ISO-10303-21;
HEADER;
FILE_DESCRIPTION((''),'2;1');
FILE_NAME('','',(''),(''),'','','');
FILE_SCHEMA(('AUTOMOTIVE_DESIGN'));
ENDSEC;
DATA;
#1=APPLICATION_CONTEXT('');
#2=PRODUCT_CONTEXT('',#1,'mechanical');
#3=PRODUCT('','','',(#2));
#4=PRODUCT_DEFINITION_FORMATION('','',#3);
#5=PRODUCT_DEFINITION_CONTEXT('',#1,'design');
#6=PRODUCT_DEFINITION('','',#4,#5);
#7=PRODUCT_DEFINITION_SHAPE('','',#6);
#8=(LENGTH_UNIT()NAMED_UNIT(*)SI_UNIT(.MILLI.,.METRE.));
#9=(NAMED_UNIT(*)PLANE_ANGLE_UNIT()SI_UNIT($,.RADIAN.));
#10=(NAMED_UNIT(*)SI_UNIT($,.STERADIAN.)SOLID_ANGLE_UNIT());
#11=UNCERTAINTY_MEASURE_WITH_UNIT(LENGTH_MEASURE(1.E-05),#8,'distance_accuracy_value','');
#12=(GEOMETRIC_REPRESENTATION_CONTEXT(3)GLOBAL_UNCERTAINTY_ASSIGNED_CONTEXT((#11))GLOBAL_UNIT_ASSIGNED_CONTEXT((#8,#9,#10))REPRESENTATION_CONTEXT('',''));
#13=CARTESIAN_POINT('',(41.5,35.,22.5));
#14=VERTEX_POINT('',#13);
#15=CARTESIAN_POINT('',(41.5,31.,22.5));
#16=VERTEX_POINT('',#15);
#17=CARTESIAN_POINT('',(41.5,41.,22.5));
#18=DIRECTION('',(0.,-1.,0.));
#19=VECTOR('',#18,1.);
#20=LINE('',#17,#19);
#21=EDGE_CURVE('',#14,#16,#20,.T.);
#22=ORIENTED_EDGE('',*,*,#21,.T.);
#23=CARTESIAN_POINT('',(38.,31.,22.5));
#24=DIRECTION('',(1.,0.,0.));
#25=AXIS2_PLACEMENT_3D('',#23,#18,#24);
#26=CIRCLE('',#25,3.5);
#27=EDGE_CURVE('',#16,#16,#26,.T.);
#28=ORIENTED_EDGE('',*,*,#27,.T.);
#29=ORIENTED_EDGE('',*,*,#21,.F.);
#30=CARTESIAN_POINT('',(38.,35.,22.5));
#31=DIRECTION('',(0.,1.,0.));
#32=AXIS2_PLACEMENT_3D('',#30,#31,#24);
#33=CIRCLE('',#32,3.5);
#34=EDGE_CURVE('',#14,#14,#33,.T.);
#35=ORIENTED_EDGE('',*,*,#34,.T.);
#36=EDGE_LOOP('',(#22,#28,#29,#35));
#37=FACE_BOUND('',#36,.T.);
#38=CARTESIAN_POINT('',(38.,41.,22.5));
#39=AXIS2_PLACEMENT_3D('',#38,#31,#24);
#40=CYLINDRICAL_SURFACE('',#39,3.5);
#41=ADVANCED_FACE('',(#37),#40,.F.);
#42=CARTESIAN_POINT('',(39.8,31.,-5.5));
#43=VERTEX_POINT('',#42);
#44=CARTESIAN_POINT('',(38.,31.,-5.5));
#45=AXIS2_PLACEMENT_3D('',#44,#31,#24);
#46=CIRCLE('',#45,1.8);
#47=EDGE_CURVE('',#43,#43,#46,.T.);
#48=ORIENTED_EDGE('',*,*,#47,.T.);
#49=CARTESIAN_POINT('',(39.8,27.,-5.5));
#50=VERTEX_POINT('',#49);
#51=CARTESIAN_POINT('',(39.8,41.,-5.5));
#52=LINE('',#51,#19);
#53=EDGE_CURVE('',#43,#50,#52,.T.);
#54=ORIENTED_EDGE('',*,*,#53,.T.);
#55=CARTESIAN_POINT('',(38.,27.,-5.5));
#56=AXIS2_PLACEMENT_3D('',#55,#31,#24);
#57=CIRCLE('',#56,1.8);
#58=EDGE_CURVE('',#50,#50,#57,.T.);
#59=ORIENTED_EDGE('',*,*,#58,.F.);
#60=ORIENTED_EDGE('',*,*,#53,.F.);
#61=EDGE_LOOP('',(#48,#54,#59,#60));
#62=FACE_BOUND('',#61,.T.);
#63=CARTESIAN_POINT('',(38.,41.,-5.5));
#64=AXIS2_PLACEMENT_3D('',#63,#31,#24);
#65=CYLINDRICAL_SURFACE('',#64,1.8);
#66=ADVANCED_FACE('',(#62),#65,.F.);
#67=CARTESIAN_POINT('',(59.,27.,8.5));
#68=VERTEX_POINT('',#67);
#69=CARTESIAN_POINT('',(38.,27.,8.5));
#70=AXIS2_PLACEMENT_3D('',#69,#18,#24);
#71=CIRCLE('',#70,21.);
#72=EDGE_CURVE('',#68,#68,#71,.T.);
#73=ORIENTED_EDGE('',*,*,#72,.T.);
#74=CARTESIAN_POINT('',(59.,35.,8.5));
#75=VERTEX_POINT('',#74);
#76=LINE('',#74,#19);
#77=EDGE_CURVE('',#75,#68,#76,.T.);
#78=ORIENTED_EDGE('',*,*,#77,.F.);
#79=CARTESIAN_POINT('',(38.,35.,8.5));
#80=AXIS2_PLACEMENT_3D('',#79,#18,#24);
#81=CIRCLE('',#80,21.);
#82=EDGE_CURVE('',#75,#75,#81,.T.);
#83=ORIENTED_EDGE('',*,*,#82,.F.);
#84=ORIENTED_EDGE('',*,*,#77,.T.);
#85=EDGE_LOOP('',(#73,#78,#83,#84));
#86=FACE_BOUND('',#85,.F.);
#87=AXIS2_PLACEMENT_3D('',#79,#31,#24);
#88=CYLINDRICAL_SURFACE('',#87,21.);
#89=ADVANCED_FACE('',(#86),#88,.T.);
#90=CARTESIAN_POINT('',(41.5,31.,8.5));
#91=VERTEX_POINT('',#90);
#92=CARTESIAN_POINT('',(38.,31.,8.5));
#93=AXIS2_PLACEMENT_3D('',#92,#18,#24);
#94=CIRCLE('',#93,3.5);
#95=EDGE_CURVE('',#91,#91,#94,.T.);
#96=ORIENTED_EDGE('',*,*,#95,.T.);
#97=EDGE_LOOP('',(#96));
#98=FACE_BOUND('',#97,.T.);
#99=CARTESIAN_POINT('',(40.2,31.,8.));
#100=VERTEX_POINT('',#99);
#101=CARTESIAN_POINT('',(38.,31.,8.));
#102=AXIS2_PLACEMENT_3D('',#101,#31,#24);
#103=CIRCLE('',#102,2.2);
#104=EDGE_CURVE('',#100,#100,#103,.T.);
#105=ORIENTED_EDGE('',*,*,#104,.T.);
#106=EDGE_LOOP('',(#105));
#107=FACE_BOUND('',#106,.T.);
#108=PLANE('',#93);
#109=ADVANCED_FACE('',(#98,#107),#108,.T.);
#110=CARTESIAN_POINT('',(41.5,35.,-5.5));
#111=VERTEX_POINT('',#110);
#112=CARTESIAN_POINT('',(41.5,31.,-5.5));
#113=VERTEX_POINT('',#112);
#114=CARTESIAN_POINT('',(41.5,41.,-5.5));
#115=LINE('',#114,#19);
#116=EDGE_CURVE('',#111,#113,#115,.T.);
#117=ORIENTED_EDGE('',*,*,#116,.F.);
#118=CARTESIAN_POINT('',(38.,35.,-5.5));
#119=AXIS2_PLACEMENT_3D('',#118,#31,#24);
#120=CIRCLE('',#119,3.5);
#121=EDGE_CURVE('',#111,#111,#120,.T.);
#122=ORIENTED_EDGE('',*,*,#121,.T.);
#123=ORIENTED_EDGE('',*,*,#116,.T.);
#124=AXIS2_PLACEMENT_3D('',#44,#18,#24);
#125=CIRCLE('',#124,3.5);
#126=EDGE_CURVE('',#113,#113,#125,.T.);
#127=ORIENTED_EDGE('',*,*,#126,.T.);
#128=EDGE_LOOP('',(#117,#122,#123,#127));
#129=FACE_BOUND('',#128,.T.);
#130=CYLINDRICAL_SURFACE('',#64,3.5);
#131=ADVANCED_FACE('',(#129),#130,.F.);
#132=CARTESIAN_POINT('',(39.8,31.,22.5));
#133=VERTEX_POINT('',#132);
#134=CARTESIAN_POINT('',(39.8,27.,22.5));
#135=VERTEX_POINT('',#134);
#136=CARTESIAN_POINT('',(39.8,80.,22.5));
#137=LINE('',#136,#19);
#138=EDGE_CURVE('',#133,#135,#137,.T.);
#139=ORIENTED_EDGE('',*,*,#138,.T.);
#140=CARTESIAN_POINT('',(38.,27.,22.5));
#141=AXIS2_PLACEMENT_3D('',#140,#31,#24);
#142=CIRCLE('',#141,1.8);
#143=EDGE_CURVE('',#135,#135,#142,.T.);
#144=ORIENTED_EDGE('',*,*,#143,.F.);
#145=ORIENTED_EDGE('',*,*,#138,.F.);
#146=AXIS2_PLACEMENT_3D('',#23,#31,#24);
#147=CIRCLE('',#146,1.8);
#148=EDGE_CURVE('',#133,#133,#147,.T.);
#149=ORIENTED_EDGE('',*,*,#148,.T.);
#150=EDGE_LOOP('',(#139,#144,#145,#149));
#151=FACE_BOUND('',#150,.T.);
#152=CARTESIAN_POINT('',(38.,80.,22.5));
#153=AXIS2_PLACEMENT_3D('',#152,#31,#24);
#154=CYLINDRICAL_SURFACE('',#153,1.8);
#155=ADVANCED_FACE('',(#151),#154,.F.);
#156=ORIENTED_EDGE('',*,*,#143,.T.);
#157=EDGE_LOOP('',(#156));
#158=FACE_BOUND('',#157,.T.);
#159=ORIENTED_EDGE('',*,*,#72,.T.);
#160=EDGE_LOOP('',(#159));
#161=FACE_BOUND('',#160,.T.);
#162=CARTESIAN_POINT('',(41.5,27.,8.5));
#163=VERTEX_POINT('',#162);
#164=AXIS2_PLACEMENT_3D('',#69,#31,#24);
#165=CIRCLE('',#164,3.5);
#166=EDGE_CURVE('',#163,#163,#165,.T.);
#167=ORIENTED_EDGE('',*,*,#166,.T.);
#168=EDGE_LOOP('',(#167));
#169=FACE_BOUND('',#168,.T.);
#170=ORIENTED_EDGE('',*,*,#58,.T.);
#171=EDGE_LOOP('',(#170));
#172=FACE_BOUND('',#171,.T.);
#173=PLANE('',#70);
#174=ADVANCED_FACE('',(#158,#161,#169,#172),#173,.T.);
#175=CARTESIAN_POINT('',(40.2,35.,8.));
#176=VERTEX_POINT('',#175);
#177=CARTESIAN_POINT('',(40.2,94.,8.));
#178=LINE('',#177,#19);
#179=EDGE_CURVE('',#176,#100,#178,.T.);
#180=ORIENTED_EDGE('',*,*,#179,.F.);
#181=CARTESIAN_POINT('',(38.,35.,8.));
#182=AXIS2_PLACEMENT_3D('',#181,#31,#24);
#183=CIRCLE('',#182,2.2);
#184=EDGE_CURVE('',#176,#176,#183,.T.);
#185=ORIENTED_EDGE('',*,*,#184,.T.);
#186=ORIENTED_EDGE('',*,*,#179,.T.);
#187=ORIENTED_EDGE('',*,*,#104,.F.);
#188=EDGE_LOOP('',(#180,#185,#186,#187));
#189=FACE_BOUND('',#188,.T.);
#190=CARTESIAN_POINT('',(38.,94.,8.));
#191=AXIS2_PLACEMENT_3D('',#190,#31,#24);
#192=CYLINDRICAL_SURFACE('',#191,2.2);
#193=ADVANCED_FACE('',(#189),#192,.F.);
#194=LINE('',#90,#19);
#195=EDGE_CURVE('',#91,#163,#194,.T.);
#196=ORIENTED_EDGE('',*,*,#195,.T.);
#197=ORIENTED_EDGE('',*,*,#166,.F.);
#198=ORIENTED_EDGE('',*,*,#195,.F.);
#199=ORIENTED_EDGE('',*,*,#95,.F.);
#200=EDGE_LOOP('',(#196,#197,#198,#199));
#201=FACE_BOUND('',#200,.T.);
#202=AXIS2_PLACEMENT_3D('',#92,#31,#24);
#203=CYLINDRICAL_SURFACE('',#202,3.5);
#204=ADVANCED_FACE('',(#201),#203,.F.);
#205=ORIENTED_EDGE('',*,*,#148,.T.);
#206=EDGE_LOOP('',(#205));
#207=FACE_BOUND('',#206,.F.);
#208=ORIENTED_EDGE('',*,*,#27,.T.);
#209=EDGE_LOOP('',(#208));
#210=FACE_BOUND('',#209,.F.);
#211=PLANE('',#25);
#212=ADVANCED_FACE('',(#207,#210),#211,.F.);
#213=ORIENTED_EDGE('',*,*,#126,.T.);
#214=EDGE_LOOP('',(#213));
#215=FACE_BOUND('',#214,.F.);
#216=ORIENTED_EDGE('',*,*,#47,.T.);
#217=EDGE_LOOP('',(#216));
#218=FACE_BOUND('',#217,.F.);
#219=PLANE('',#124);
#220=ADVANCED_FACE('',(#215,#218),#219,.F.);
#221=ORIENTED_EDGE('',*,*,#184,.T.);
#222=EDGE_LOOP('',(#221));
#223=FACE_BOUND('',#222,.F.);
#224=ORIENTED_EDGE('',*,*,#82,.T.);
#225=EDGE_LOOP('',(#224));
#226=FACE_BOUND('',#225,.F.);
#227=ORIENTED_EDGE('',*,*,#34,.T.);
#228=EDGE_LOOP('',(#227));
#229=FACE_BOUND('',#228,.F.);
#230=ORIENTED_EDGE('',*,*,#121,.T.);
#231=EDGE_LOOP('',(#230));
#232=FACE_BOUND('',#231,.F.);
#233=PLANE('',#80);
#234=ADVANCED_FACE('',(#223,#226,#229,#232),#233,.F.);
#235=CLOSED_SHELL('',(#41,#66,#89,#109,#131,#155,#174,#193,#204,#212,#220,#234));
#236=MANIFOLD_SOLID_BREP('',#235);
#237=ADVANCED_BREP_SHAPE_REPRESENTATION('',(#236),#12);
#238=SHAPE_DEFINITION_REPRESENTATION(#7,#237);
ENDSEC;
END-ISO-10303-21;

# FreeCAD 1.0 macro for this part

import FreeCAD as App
import Part
import Sketcher
Q = App.Units.Quantity

doc = App.newDocument("Part")
body = doc.addObject("PartDesign::Body", "Body")

sketch1 = doc.addObject("Sketcher::SketchObject", "Sketch")
body.addObject(sketch1)
sketch1.AttachmentSupport = (doc.XY_Plane, [""])
sketch1.MapMode = "FlatFace"
sketch1.addGeometry(Part.Circle(App.Vector(0, 0, 0), App.Vector(0, 0, 1), 3.5), False)
sketch1.addConstraint(Sketcher.Constraint("Coincident", 0, 3, -1, 1))
sketch1.addConstraint(Sketcher.Constraint("Diameter", 0, Q("7 mm")))
pad1 = doc.addObject("PartDesign::Pad", "Pad")
body.addObject(pad1)
pad1.Profile = sketch1
pad1.Length = 10
body2 = doc.addObject("PartDesign::Body", "Body001")
doc.recompute()

body.Placement = App.Placement(App.Vector(0, 0, 0), App.Rotation(App.Vector(1, 0, 0), 90))
boolean = doc.addObject("PartDesign::Boolean", "Boolean")
body2.addObject(boolean)
boolean.Type = "Fuse"
boolean.addObjects([body])
body3 = doc.addObject("PartDesign::Body", "Body002")
doc.recompute()

body2.Placement = App.Placement(App.Vector(38, 41, -5.5), App.Rotation(App.Vector(0, 0, 1), 0))
boolean2 = doc.addObject("PartDesign::Boolean", "Boolean001")
body3.addObject(boolean2)
boolean2.Type = "Fuse"
boolean2.addObjects([body2])
body4 = doc.addObject("PartDesign::Body", "Body003")

sketch2 = doc.addObject("Sketcher::SketchObject", "Sketch001")
body4.addObject(sketch2)
sketch2.AttachmentSupport = (doc.getObject("XY_Plane003"), [""])
sketch2.MapMode = "FlatFace"
sketch2.addGeometry(Part.Circle(App.Vector(0, 0, 0), App.Vector(0, 0, 1), 1.8), False)
sketch2.addConstraint(Sketcher.Constraint("Coincident", 0, 3, -1, 1))
sketch2.addConstraint(Sketcher.Constraint("Diameter", 0, Q("3.6 mm")))
pad2 = doc.addObject("PartDesign::Pad", "Pad001")
body4.addObject(pad2)
pad2.Profile = sketch2
pad2.Length = 48
body5 = doc.addObject("PartDesign::Body", "Body004")
doc.recompute()

body4.Placement = App.Placement(App.Vector(0, 0, 0), App.Rotation(App.Vector(1, 0, 0), 90))
boolean3 = doc.addObject("PartDesign::Boolean", "Boolean002")
body5.addObject(boolean3)
boolean3.Type = "Fuse"
boolean3.addObjects([body4])
body6 = doc.addObject("PartDesign::Body", "Body005")
doc.recompute()

body5.Placement = App.Placement(App.Vector(38, 41, -5.5), App.Rotation(App.Vector(0, 0, 1), 0))
boolean4 = doc.addObject("PartDesign::Boolean", "Boolean003")
body6.addObject(boolean4)
boolean4.Type = "Fuse"
boolean4.addObjects([body5])
body7 = doc.addObject("PartDesign::Body", "Body006")

sketch3 = doc.addObject("Sketcher::SketchObject", "Sketch002")
body7.addObject(sketch3)
sketch3.AttachmentSupport = (doc.getObject("XY_Plane006"), [""])
sketch3.MapMode = "FlatFace"
sketch3.addGeometry(Part.Circle(App.Vector(0, 0, 0), App.Vector(0, 0, 1), 3.5), False)
sketch3.addConstraint(Sketcher.Constraint("Coincident", 0, 3, -1, 1))
sketch3.addConstraint(Sketcher.Constraint("Diameter", 0, Q("7 mm")))
pad3 = doc.addObject("PartDesign::Pad", "Pad002")
body7.addObject(pad3)
pad3.Profile = sketch3
pad3.Length = 10
body8 = doc.addObject("PartDesign::Body", "Body007")
doc.recompute()

body7.Placement = App.Placement(App.Vector(0, 0, 0), App.Rotation(App.Vector(1, 0, 0), 90))
boolean5 = doc.addObject("PartDesign::Boolean", "Boolean004")
body8.addObject(boolean5)
boolean5.Type = "Fuse"
boolean5.addObjects([body7])
body9 = doc.addObject("PartDesign::Body", "Body008")
doc.recompute()

body8.Placement = App.Placement(App.Vector(38, 41, 22.5), App.Rotation(App.Vector(0, 0, 1), 0))
boolean6 = doc.addObject("PartDesign::Boolean", "Boolean005")
body9.addObject(boolean6)
boolean6.Type = "Fuse"
boolean6.addObjects([body8])
body10 = doc.addObject("PartDesign::Body", "Body009")

sketch4 = doc.addObject("Sketcher::SketchObject", "Sketch003")
body10.addObject(sketch4)
sketch4.AttachmentSupport = (doc.getObject("XY_Plane009"), [""])
sketch4.MapMode = "FlatFace"
sketch4.addGeometry(Part.Circle(App.Vector(0, 0, 0), App.Vector(0, 0, 1), 3.5), False)
sketch4.addConstraint(Sketcher.Constraint("Coincident", 0, 3, -1, 1))
sketch4.addConstraint(Sketcher.Constraint("Diameter", 0, Q("7 mm")))
pad4 = doc.addObject("PartDesign::Pad", "Pad003")
body10.addObject(pad4)
pad4.Profile = sketch4
pad4.Length = 10
body11 = doc.addObject("PartDesign::Body", "Body010")
doc.recompute()

body10.Placement = App.Placement(App.Vector(0, 0, 0), App.Rotation(App.Vector(1, 0, 0), 90))
boolean7 = doc.addObject("PartDesign::Boolean", "Boolean006")
body11.addObject(boolean7)
boolean7.Type = "Fuse"
boolean7.addObjects([body10])
body12 = doc.addObject("PartDesign::Body", "Body011")
doc.recompute()

body11.Placement = App.Placement(App.Vector(38, 31, 8.5), App.Rotation(App.Vector(0, 0, 1), 0))
boolean8 = doc.addObject("PartDesign::Boolean", "Boolean007")
body12.addObject(boolean8)
boolean8.Type = "Fuse"
boolean8.addObjects([body11])
body13 = doc.addObject("PartDesign::Body", "Body012")

sketch5 = doc.addObject("Sketcher::SketchObject", "Sketch004")
body13.addObject(sketch5)
sketch5.AttachmentSupport = (doc.getObject("XY_Plane012"), [""])
sketch5.MapMode = "FlatFace"
sketch5.addGeometry(Part.Circle(App.Vector(0, 0, 0), App.Vector(0, 0, 1), 1.8), False)
sketch5.addConstraint(Sketcher.Constraint("Coincident", 0, 3, -1, 1))
sketch5.addConstraint(Sketcher.Constraint("Diameter", 0, Q("3.6 mm")))
pad5 = doc.addObject("PartDesign::Pad", "Pad004")
body13.addObject(pad5)
pad5.Profile = sketch5
pad5.Length = 100
body14 = doc.addObject("PartDesign::Body", "Body013")
doc.recompute()

body13.Placement = App.Placement(App.Vector(0, 0, 0), App.Rotation(App.Vector(1, 0, 0), 90))
boolean9 = doc.addObject("PartDesign::Boolean", "Boolean008")
body14.addObject(boolean9)
boolean9.Type = "Fuse"
boolean9.addObjects([body13])
body15 = doc.addObject("PartDesign::Body", "Body014")
doc.recompute()

body14.Placement = App.Placement(App.Vector(38, 80, 22.5), App.Rotation(App.Vector(0, 0, 1), 0))
boolean10 = doc.addObject("PartDesign::Boolean", "Boolean009")
body15.addObject(boolean10)
boolean10.Type = "Fuse"
boolean10.addObjects([body14])
body16 = doc.addObject("PartDesign::Body", "Body015")

sketch6 = doc.addObject("Sketcher::SketchObject", "Sketch005")
body16.addObject(sketch6)
sketch6.AttachmentSupport = (doc.getObject("XY_Plane015"), [""])
sketch6.MapMode = "FlatFace"
sketch6.addGeometry(Part.Circle(App.Vector(0, 0, 0), App.Vector(0, 0, 1), 2.2), False)
sketch6.addConstraint(Sketcher.Constraint("Coincident", 0, 3, -1, 1))
sketch6.addConstraint(Sketcher.Constraint("Diameter", 0, Q("4.4 mm")))
pad6 = doc.addObject("PartDesign::Pad", "Pad005")
body16.addObject(pad6)
pad6.Profile = sketch6
pad6.Length = 100
body17 = doc.addObject("PartDesign::Body", "Body016")
doc.recompute()

body16.Placement = App.Placement(App.Vector(0, 0, 0), App.Rotation(App.Vector(1, 0, 0), 90))
boolean11 = doc.addObject("PartDesign::Boolean", "Boolean010")
body17.addObject(boolean11)
boolean11.Type = "Fuse"
boolean11.addObjects([body16])
body18 = doc.addObject("PartDesign::Body", "Body017")
doc.recompute()

body17.Placement = App.Placement(App.Vector(38, 94, 8), App.Rotation(App.Vector(0, 0, 1), 0))
boolean12 = doc.addObject("PartDesign::Boolean", "Boolean011")
body18.addObject(boolean12)
boolean12.Type = "Fuse"
boolean12.addObjects([body17])
body19 = doc.addObject("PartDesign::Body", "Body018")

sketch7 = doc.addObject("Sketcher::SketchObject", "Sketch006")
body19.addObject(sketch7)
sketch7.AttachmentSupport = (doc.getObject("XY_Plane018"), [""])
sketch7.MapMode = "FlatFace"
sketch7.addGeometry(Part.Circle(App.Vector(0, 0, 0), App.Vector(0, 0, 1), 21), False)
sketch7.addConstraint(Sketcher.Constraint("Coincident", 0, 3, -1, 1))
sketch7.addConstraint(Sketcher.Constraint("Diameter", 0, Q("42 mm")))
pad7 = doc.addObject("PartDesign::Pad", "Pad006")
body19.addObject(pad7)
pad7.Profile = sketch7
pad7.Length = 8
body20 = doc.addObject("PartDesign::Body", "Body019")
doc.recompute()

body19.Placement = App.Placement(App.Vector(0, 0, 0), App.Rotation(App.Vector(1, 0, 0), 90))
boolean13 = doc.addObject("PartDesign::Boolean", "Boolean012")
body20.addObject(boolean13)
boolean13.Type = "Fuse"
boolean13.addObjects([body19])
body21 = doc.addObject("PartDesign::Body", "Body020")
doc.recompute()

body20.Placement = App.Placement(App.Vector(38, 35, 8.5), App.Rotation(App.Vector(0, 0, 1), 0))
boolean14 = doc.addObject("PartDesign::Boolean", "Boolean013")
body21.addObject(boolean14)
boolean14.Type = "Fuse"
boolean14.addObjects([body20])
doc.recompute()

boolean15 = doc.addObject("PartDesign::Boolean", "Boolean014")
body21.addObject(boolean15)
boolean15.Type = "Cut"
boolean15.addObjects([body18])
doc.recompute()

boolean16 = doc.addObject("PartDesign::Boolean", "Boolean015")
body21.addObject(boolean16)
boolean16.Type = "Cut"
boolean16.addObjects([body15])
doc.recompute()

boolean17 = doc.addObject("PartDesign::Boolean", "Boolean016")
body21.addObject(boolean17)
boolean17.Type = "Cut"
boolean17.addObjects([body12])
doc.recompute()

boolean18 = doc.addObject("PartDesign::Boolean", "Boolean017")
body21.addObject(boolean18)
boolean18.Type = "Cut"
boolean18.addObjects([body9])
doc.recompute()

boolean19 = doc.addObject("PartDesign::Boolean", "Boolean018")
body21.addObject(boolean19)
boolean19.Type = "Cut"
boolean19.addObjects([body6])
doc.recompute()

boolean20 = doc.addObject("PartDesign::Boolean", "Boolean019")
body21.addObject(boolean20)
boolean20.Type = "Cut"
boolean20.addObjects([body3])

doc.recompute()
